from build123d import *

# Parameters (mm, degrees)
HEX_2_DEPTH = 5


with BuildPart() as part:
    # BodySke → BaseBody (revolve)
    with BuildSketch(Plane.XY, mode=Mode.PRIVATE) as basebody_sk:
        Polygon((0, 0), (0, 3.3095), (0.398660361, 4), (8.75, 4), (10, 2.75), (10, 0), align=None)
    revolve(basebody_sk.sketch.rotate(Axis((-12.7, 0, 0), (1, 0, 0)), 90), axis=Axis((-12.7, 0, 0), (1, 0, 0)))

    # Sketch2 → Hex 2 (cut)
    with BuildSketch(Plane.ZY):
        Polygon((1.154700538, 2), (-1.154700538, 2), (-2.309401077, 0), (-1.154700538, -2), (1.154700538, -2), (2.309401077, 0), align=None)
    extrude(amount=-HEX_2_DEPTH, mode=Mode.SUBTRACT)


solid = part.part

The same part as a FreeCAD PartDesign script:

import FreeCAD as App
import Part
import Sketcher
Q = App.Units.Quantity

doc = App.newDocument("Part")
body = doc.addObject("PartDesign::Body", "Body")

# Sketch on XY plane
sketch1 = body.newObject("Sketcher::SketchObject", "Sketch")
sketch1.AttachmentSupport = (doc.getObject("XY_Plane"), [""])
sketch1.MapMode = "FlatFace"
sketch1.addGeometry([
    Part.LineSegment(App.Vector(0, 3.3, 0), App.Vector(0, 0, 0)),  # 0
    Part.LineSegment(App.Vector(0, 0, 0), App.Vector(10, 0, 0)),  # 1
    Part.LineSegment(App.Vector(10, 0, 0), App.Vector(10, 2.8, 0)),  # 2
    Part.LineSegment(App.Vector(10, 2.8, 0), App.Vector(8.8, 4, 0)),  # 3
    Part.LineSegment(App.Vector(8.8, 4, 0), App.Vector(0.4, 4, 0)),  # 4
    Part.LineSegment(App.Vector(0.4, 4, 0), App.Vector(0, 3.3, 0)),  # 5
], False)
sketch1.addConstraint([
    Sketcher.Constraint("Coincident", 0, 2, 1, 1),
    Sketcher.Constraint("Coincident", 1, 2, 2, 1),
    Sketcher.Constraint("Coincident", 2, 2, 3, 1),
    Sketcher.Constraint("Coincident", 3, 2, 4, 1),
    Sketcher.Constraint("Coincident", 4, 2, 5, 1),
    Sketcher.Constraint("Coincident", 5, 2, 0, 1),
    Sketcher.Constraint("Vertical", 0),
    Sketcher.Constraint("Horizontal", 1),
    Sketcher.Constraint("Vertical", 2),
    Sketcher.Constraint("Horizontal", 4),
    Sketcher.Constraint("Coincident", 0, 2, -1, 1),
    Sketcher.Constraint("DistanceX", 1, 1, 1, 2, 10.0),
    Sketcher.Constraint("Angle", 3, Q("135 deg")),
    Sketcher.Constraint("Angle", 5, Q("-120 deg")),
    Sketcher.Constraint("DistanceY", -1, 1, 3, 2, 4.0),
    Sketcher.Constraint("DistanceY", 2, 1, 2, 2, 2.75),
    Sketcher.Constraint("DistanceY", 0, 2, 0, 1, 3.3095),
])
revolution = body.newObject("PartDesign::Revolution", "Revolution")
revolution.Profile = sketch1
revolution.ReferenceAxis = (sketch1, ["H_Axis"])
revolution.Angle = 360

# Sketch on YZ plane
sketch2 = body.newObject("Sketcher::SketchObject", "Sketch001")
sketch2.AttachmentSupport = (doc.getObject("YZ_Plane"), [""])
sketch2.MapMode = "FlatFace"
sketch2.addGeometry([
    Part.LineSegment(App.Vector(2, 1.2, 0), App.Vector(2, -1.2, 0)),  # 0
    Part.LineSegment(App.Vector(2, -1.2, 0), App.Vector(0, -2.3, 0)),  # 1
    Part.LineSegment(App.Vector(0, -2.3, 0), App.Vector(-2, -1.2, 0)),  # 2
    Part.LineSegment(App.Vector(-2, -1.2, 0), App.Vector(-2, 1.2, 0)),  # 3
    Part.LineSegment(App.Vector(-2, 1.2, 0), App.Vector(0, 2.3, 0)),  # 4
    Part.LineSegment(App.Vector(0, 2.3, 0), App.Vector(2, 1.2, 0)),  # 5
], False)
sketch2.addConstraint([
    Sketcher.Constraint("Coincident", 0, 2, 1, 1),
    Sketcher.Constraint("Coincident", 1, 2, 2, 1),
    Sketcher.Constraint("Coincident", 2, 2, 3, 1),
    Sketcher.Constraint("Coincident", 3, 2, 4, 1),
    Sketcher.Constraint("Coincident", 4, 2, 5, 1),
    Sketcher.Constraint("Coincident", 5, 2, 0, 1),
    Sketcher.Constraint("Vertical", 0),
    Sketcher.Constraint("Vertical", 3),
    Sketcher.Constraint("Symmetric", 0, 2, 3, 2, -1, 1),
    Sketcher.Constraint("Symmetric", 1, 2, 4, 2, -1, 1),
    Sketcher.Constraint("PointOnObject", 1, 2, -2),
    Sketcher.Constraint("Parallel", 2, 5),
    Sketcher.Constraint("Horizontal", 0, 2, 2, 2),
    Sketcher.Constraint("Angle", 1, Q("-150 deg")),
    Sketcher.Constraint("DistanceX", -1, 1, 0, 2, 2.0),
    Sketcher.Constraint("DistanceY", 0, 2, 0, 1, 2.309401),
])
pocket1 = body.newObject("PartDesign::Pocket", "Pocket")
pocket1.Profile = sketch2
pocket1.Length = 5
pocket1.Reversed = True

doc.recompute()
